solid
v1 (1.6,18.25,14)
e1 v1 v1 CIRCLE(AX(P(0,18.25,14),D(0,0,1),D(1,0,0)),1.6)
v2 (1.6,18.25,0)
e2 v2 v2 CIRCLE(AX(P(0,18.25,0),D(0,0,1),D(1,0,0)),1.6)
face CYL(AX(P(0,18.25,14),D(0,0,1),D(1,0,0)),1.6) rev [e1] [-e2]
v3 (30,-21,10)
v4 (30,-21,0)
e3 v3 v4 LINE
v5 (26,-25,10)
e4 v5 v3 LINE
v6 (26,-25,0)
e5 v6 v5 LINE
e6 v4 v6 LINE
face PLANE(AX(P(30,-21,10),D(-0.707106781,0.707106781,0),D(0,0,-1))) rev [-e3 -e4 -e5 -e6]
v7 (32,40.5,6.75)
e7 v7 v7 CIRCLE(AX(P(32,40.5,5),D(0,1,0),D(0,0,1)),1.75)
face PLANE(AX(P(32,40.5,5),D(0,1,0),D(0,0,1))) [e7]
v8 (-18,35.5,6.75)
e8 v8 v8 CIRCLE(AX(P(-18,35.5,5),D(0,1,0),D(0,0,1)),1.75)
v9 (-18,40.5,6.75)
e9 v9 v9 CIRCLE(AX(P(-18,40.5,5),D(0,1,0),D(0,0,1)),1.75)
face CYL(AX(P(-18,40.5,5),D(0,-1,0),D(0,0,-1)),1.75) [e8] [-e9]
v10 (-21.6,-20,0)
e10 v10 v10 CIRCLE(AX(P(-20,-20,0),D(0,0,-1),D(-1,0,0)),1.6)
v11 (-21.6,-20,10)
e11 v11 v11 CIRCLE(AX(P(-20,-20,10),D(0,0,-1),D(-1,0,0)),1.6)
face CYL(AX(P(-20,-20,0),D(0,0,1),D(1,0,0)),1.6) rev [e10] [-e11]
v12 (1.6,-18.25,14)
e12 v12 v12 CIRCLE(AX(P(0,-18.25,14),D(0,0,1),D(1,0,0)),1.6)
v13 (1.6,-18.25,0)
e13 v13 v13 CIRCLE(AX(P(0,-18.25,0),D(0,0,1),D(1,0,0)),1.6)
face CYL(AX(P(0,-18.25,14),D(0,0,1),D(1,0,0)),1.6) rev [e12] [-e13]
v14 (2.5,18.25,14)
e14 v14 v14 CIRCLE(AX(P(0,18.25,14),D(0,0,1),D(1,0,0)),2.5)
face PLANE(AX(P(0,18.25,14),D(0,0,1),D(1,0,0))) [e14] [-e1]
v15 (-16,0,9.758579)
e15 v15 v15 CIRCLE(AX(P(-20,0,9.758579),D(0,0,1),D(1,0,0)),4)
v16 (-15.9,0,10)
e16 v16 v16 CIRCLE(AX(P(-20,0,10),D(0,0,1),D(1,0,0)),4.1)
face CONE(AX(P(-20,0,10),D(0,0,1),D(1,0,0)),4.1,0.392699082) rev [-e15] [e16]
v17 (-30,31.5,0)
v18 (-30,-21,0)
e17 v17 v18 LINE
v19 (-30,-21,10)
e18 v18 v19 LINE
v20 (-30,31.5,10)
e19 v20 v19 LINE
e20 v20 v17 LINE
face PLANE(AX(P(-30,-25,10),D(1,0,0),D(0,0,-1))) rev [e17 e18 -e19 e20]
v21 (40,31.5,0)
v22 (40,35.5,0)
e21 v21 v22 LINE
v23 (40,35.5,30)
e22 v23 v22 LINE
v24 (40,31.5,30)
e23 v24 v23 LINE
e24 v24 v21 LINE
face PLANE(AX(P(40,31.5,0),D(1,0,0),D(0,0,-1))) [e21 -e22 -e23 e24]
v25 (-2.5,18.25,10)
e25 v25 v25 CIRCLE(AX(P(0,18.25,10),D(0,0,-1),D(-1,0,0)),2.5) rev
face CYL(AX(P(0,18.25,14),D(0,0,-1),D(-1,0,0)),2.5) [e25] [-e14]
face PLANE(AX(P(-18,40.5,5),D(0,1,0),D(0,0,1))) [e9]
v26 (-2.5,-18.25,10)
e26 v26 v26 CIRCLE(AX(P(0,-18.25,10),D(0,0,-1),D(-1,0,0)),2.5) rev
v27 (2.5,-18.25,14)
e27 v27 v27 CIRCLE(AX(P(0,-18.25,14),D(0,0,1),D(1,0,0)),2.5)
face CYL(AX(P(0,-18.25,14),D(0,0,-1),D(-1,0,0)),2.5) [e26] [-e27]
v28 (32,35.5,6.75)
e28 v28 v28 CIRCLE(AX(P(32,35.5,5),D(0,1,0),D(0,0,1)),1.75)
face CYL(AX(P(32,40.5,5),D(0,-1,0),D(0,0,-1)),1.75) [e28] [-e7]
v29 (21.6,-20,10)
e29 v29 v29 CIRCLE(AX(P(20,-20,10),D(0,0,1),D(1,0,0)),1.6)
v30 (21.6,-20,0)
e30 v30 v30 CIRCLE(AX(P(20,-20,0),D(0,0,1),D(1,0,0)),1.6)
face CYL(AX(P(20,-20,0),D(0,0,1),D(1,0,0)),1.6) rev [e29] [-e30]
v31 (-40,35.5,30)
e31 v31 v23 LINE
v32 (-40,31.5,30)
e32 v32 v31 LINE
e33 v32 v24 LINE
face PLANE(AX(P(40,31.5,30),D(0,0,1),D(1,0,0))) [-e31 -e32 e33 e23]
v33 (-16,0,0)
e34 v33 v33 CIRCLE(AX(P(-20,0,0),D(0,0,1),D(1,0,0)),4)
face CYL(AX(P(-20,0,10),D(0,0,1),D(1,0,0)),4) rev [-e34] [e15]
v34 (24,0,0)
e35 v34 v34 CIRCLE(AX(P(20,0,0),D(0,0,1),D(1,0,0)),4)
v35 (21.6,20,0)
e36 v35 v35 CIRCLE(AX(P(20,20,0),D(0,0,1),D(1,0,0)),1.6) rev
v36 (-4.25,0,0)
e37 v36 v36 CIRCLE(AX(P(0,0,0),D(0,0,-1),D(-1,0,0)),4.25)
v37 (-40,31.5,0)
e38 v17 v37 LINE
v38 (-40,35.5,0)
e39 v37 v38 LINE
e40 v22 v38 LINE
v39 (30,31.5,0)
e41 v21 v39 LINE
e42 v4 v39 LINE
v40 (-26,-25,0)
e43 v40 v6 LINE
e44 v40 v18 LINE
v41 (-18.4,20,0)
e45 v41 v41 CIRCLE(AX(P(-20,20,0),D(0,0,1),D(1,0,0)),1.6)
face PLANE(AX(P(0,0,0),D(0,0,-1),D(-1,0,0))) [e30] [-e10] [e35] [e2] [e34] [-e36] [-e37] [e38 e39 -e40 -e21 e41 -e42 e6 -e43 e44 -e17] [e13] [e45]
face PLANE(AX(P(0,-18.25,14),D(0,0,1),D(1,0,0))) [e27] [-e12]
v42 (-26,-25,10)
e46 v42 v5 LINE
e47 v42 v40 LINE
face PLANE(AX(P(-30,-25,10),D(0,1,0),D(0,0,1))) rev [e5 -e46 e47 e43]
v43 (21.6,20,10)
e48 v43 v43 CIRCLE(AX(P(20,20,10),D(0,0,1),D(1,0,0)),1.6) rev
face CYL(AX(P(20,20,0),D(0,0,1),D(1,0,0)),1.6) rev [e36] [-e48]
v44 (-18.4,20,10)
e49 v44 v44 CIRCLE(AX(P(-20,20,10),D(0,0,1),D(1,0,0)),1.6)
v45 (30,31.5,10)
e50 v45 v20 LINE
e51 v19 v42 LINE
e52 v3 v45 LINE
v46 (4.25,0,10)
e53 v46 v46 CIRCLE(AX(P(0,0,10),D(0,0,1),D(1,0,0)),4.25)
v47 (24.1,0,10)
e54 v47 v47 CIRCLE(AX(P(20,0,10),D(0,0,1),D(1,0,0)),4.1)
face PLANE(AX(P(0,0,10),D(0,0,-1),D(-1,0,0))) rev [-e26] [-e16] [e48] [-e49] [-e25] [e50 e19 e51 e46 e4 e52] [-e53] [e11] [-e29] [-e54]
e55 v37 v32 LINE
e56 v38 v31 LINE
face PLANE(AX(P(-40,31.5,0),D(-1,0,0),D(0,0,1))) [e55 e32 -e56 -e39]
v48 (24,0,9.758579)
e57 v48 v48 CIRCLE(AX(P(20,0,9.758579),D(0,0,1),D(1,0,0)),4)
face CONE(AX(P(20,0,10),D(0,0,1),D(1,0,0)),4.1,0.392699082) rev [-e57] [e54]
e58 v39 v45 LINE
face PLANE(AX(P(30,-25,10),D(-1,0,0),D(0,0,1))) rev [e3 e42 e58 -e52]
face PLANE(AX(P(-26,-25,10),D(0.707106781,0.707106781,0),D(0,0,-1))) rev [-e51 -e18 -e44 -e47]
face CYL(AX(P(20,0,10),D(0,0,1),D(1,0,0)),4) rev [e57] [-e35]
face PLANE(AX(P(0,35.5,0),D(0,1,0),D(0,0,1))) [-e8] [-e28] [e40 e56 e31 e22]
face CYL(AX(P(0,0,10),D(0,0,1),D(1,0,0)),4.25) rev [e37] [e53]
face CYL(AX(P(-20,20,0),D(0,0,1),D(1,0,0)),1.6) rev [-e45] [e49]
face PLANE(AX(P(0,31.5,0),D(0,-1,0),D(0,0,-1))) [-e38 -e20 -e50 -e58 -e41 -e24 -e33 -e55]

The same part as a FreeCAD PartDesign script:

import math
import FreeCAD as App
import Part
import Sketcher

V = App.Vector


def edges_at(feature, points):
    """Names of the edges that pass closest to the given points."""
    edges = feature.Shape.Edges
    near = lambda p: min(range(len(edges)), key=lambda i: edges[i].distToShape(Part.Vertex(*p))[0])
    return sorted({f"Edge{near(p) + 1}" for p in points})


def add_polygon(sketch, points):
    """Adds a closed chain of lines whose ends are joined by coincident constraints."""
    first, n = sketch.GeometryCount, len(points)
    for a, b in zip(points, points[1:] + points[:1]):
        sketch.addGeometry(Part.LineSegment(App.Vector(*a, 0), App.Vector(*b, 0)), False)
    for i in range(n):
        sketch.addConstraint(Sketcher.Constraint("Coincident", first + i, 2, first + (i + 1) % n, 1))

doc = App.newDocument("Part")
body = doc.addObject("PartDesign::Body", "Body")

sketch1 = body.newObject("Sketcher::SketchObject", "Sketch")
sketch1.AttachmentSupport = (doc.getObject("XY_Plane"), [""])
sketch1.MapMode = "FlatFace"
add_polygon(sketch1, [(-30, 25), (-30, -25), (30, -25), (30, 25)])
sketch1.addConstraint(Sketcher.Constraint("Vertical", 0))
sketch1.addConstraint(Sketcher.Constraint("Horizontal", 1))
sketch1.addConstraint(Sketcher.Constraint("Vertical", 2))
sketch1.addConstraint(Sketcher.Constraint("Horizontal", 3))
sketch1.addConstraint(Sketcher.Constraint("Symmetric", 0, 2, 2, 2, -1, 1))
sketch1.addConstraint(Sketcher.Constraint("DistanceX", 1, 1, 1, 2, 60.0))
sketch1.addConstraint(Sketcher.Constraint("DistanceY", 0, 2, 0, 1, 50.0))
pad1 = body.newObject("PartDesign::Pad", "Pad")
pad1.Profile = sketch1
pad1.Length = 10

sketch2 = body.newObject("Sketcher::SketchObject", "Sketch001")
sketch2.AttachmentSupport = (doc.getObject("XY_Plane"), [""])
sketch2.MapMode = "FlatFace"
sketch2.AttachmentOffset = App.Placement(V(0, 0, 10), App.Rotation())
sketch2.addGeometry(Part.Circle(V(0, 0, 0), V(0, 0, 1), 4.2), False)
sketch2.addConstraint(Sketcher.Constraint("Coincident", 0, 3, -1, 1))
sketch2.addConstraint(Sketcher.Constraint("Diameter", 0, 8.5))
doc.recompute()
hole = body.newObject("PartDesign::Hole", "Hole")
hole.Profile = sketch2
hole.ThreadType = "None"
hole.Diameter = 8.5
hole.DepthType = "Dimension"
hole.Depth = 20
hole.DrillPoint = "Flat"

sketch3 = body.newObject("Sketcher::SketchObject", "Sketch002")
sketch3.AttachmentSupport = (doc.getObject("XY_Plane"), [""])
sketch3.MapMode = "FlatFace"
sketch3.AttachmentOffset = App.Placement(V(0, 0, 10), App.Rotation())
sketch3.addGeometry(Part.Circle(V(20, 0, 0), V(0, 0, 1), 4), False)
sketch3.addGeometry(Part.Circle(V(-20, 0, 0), V(0, 0, 1), 4), False)
sketch3.addConstraint(Sketcher.Constraint("Equal", 0, 1))
sketch3.addConstraint(Sketcher.Constraint("Symmetric", 0, 3, 1, 3, -1, 1))
sketch3.addConstraint(Sketcher.Constraint("PointOnObject", 0, 3, -1))
sketch3.addConstraint(Sketcher.Constraint("Diameter", 0, 8.0))
sketch3.addConstraint(Sketcher.Constraint("DistanceX", -1, 1, 0, 3, 20.0))
doc.recompute()
hole2 = body.newObject("PartDesign::Hole", "Hole001")
hole2.Profile = sketch3
hole2.ThreadType = "None"
hole2.Diameter = 8
hole2.DepthType = "ThroughAll"
hole2.HoleCutType = "Countersink"
hole2.HoleCutDiameter = 8.2
hole2.HoleCutCountersinkAngle = 45

sketch4 = body.newObject("Sketcher::SketchObject", "Sketch003")
sketch4.AttachmentSupport = (doc.getObject("XY_Plane"), [""])
sketch4.MapMode = "FlatFace"
sketch4.AttachmentOffset = App.Placement(V(0, 0, 10), App.Rotation())
sketch4.addGeometry(Part.Circle(V(0, 18.2, 0), V(0, 0, 1), 2.5), False)
sketch4.addGeometry(Part.Circle(V(0, -18.2, 0), V(0, 0, 1), 2.5), False)
sketch4.addConstraint(Sketcher.Constraint("Equal", 0, 1))
sketch4.addConstraint(Sketcher.Constraint("Symmetric", 0, 3, 1, 3, -1, 1))
sketch4.addConstraint(Sketcher.Constraint("PointOnObject", 0, 3, -2))
sketch4.addConstraint(Sketcher.Constraint("Diameter", 0, 5.0))
sketch4.addConstraint(Sketcher.Constraint("DistanceY", 1, 3, 0, 3, 36.5))
pad2 = body.newObject("PartDesign::Pad", "Pad001")
pad2.Profile = sketch4
pad2.Length = 4

sketch5 = body.newObject("Sketcher::SketchObject", "Sketch004")
sketch5.AttachmentSupport = (doc.getObject("XY_Plane"), [""])
sketch5.MapMode = "FlatFace"
sketch5.AttachmentOffset = App.Placement(V(0, 0, 14), App.Rotation())
sketch5.addGeometry(Part.Circle(V(0, 18.2, 0), V(0, 0, 1), 1.6), False)
sketch5.addGeometry(Part.Circle(V(0, -18.2, 0), V(0, 0, 1), 1.6), False)
sketch5.addConstraint(Sketcher.Constraint("Equal", 0, 1))
sketch5.addConstraint(Sketcher.Constraint("Symmetric", 0, 3, 1, 3, -1, 1))
sketch5.addConstraint(Sketcher.Constraint("PointOnObject", 0, 3, -2))
sketch5.addConstraint(Sketcher.Constraint("Diameter", 0, 3.2))
sketch5.addConstraint(Sketcher.Constraint("DistanceY", 1, 3, 0, 3, 36.5))
doc.recompute()
hole3 = body.newObject("PartDesign::Hole", "Hole002")
hole3.Profile = sketch5
hole3.ThreadType = "None"
hole3.Diameter = 3.2
hole3.DepthType = "ThroughAll"
doc.recompute()

chamfer = body.newObject("PartDesign::Chamfer", "Chamfer")
chamfer.Base = (hole3, edges_at(hole3, [(30, -25, 5), (-30, -25, 5)]))
chamfer.Size = 4

sketch6 = body.newObject("Sketcher::SketchObject", "Sketch005")
sketch6.AttachmentSupport = (doc.getObject("XY_Plane"), [""])
sketch6.MapMode = "FlatFace"
sketch6.AttachmentOffset = App.Placement(V(0, 0, 10), App.Rotation())
sketch6.addGeometry(Part.ArcOfCircle(Part.Circle(V(-20, 20, 0), V(0, 0, 1), 1.6), math.radians(135), math.radians(315)), False)
sketch6.addGeometry(Part.ArcOfCircle(Part.Circle(V(-20, 20, 0), V(0, 0, 1), 1.6), math.radians(-45), math.radians(0)), False)
sketch6.addGeometry(Part.ArcOfCircle(Part.Circle(V(-20, 20, 0), V(0, 0, 1), 1.6), math.radians(0), math.radians(135)), False)
sketch6.addGeometry(Part.Circle(V(20, 20, 0), V(0, 0, 1), 1.6), False)
sketch6.addGeometry(Part.Circle(V(20, -20, 0), V(0, 0, 1), 1.6), False)
sketch6.addGeometry(Part.Circle(V(-20, -20, 0), V(0, 0, 1), 1.6), False)
sketch6.addConstraint(Sketcher.Constraint("Tangent", 0, 2, 1, 1))
sketch6.addConstraint(Sketcher.Constraint("Tangent", 1, 2, 2, 1))
sketch6.addConstraint(Sketcher.Constraint("Tangent", 2, 2, 0, 1))
sketch6.addConstraint(Sketcher.Constraint("Equal", 2, 3))
sketch6.addConstraint(Sketcher.Constraint("Equal", 3, 4))
sketch6.addConstraint(Sketcher.Constraint("Equal", 4, 5))
sketch6.addConstraint(Sketcher.Constraint("Symmetric", 0, 3, 4, 3, -1, 1))
sketch6.addConstraint(Sketcher.Constraint("Symmetric", 3, 3, 5, 3, -1, 1))
sketch6.addConstraint(Sketcher.Constraint("Symmetric", 0, 3, 3, 3, -2))
sketch6.addConstraint(Sketcher.Constraint("Horizontal", 3, 3, 1, 2))
sketch6.addConstraint(Sketcher.Constraint("Diameter", 3, 3.2))
sketch6.addConstraint(Sketcher.Constraint("DistanceX", 0, 3, -1, 1, 20.0))
sketch6.addConstraint(Sketcher.Constraint("DistanceY", -1, 1, 0, 3, 20.0))
sketch6.addConstraint(Sketcher.Constraint("DistanceX", 0, 2, -1, 1, 18.868629))
sketch6.addConstraint(Sketcher.Constraint("DistanceX", 2, 2, -1, 1, 21.131371))
pocket1 = body.newObject("PartDesign::Pocket", "Pocket")
pocket1.Profile = sketch6
pocket1.Type = "ThroughAll"

sketch7 = body.newObject("Sketcher::SketchObject", "Sketch006")
sketch7.AttachmentSupport = (doc.getObject("XZ_Plane"), [""])
sketch7.MapMode = "FlatFace"
sketch7.AttachmentOffset = App.Placement(V(0, 0, -25), App.Rotation())
add_polygon(sketch7, [(-30, 0), (-30, 10), (30, 10), (30, 0)])
sketch7.addConstraint(Sketcher.Constraint("Vertical", 0))
sketch7.addConstraint(Sketcher.Constraint("Horizontal", 1))
sketch7.addConstraint(Sketcher.Constraint("Vertical", 2))
sketch7.addConstraint(Sketcher.Constraint("Horizontal", 3))
sketch7.addConstraint(Sketcher.Constraint("Symmetric", 2, 2, 3, 2, -1, 1))
sketch7.addConstraint(Sketcher.Constraint("DistanceX", 1, 1, 1, 2, 60.0))
sketch7.addConstraint(Sketcher.Constraint("DistanceY", 0, 1, 0, 2, 10.0))
pad3 = body.newObject("PartDesign::Pad", "Pad002")
pad3.Profile = sketch7
pad3.Length = 10.5
pad3.Reversed = True

sketch8 = body.newObject("Sketcher::SketchObject", "Sketch007")
sketch8.AttachmentSupport = (doc.getObject("XZ_Plane"), [""])
sketch8.MapMode = "FlatFace"
sketch8.AttachmentOffset = App.Placement(V(0, 0, -35.5), App.Rotation())
add_polygon(sketch8, [(-40, 0), (-40, 30), (40, 30), (40, 0)])
sketch8.addConstraint(Sketcher.Constraint("Vertical", 0))
sketch8.addConstraint(Sketcher.Constraint("Horizontal", 1))
sketch8.addConstraint(Sketcher.Constraint("Vertical", 2))
sketch8.addConstraint(Sketcher.Constraint("Horizontal", 3))
sketch8.addConstraint(Sketcher.Constraint("Symmetric", 2, 2, 3, 2, -1, 1))
sketch8.addConstraint(Sketcher.Constraint("DistanceX", 1, 1, 1, 2, 80.0))
sketch8.addConstraint(Sketcher.Constraint("DistanceY", 0, 1, 0, 2, 30.0))
pad4 = body.newObject("PartDesign::Pad", "Pad003")
pad4.Profile = sketch8
pad4.Length = 4

sketch9 = body.newObject("Sketcher::SketchObject", "Sketch008")
sketch9.AttachmentSupport = (doc.getObject("XZ_Plane"), [""])
sketch9.MapMode = "FlatFace"
sketch9.AttachmentOffset = App.Placement(V(0, 0, -35.5), App.Rotation())
sketch9.addGeometry(Part.Circle(V(32, 5, 0), V(0, 0, 1), 1.8), False)
sketch9.addGeometry(Part.Circle(V(-18, 5, 0), V(0, 0, 1), 1.8), False)
sketch9.addConstraint(Sketcher.Constraint("Equal", 0, 1))
sketch9.addConstraint(Sketcher.Constraint("Horizontal", 0, 3, 1, 3))
sketch9.addConstraint(Sketcher.Constraint("Diameter", 0, 3.5))
sketch9.addConstraint(Sketcher.Constraint("DistanceX", -1, 1, 0, 3, 32.0))
sketch9.addConstraint(Sketcher.Constraint("DistanceY", -1, 1, 0, 3, 5.0))
sketch9.addConstraint(Sketcher.Constraint("DistanceX", 1, 3, -1, 1, 18.0))
pad5 = body.newObject("PartDesign::Pad", "Pad004")
pad5.Profile = sketch9
pad5.Length = 5
pad5.Reversed = True

doc.recompute()
